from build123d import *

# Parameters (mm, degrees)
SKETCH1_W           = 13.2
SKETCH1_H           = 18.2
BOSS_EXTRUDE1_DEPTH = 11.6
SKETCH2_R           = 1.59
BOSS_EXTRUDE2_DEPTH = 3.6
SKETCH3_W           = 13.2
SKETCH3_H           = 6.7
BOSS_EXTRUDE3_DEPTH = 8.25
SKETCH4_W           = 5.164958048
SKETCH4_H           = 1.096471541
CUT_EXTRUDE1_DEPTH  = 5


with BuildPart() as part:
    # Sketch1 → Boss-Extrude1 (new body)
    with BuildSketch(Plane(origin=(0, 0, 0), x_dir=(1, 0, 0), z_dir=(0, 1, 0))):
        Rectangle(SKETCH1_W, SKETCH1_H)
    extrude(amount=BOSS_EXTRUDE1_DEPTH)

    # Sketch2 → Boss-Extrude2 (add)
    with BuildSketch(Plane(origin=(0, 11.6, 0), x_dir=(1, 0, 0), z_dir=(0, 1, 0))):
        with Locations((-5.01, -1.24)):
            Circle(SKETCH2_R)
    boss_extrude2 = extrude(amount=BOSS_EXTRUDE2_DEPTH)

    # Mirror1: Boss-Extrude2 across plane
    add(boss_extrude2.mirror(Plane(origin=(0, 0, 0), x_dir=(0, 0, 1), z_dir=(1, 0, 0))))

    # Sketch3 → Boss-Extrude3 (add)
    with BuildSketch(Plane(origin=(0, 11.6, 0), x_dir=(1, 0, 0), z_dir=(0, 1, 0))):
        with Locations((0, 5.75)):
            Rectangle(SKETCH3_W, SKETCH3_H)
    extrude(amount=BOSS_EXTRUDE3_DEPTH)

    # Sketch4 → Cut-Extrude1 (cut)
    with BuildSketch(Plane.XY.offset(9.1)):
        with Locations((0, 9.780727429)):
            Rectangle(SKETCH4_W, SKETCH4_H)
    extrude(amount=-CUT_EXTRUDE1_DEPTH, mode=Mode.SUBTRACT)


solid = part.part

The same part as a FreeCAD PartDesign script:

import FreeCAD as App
import Part
import Sketcher
from FreeCAD import Vector


def add_polygon(sketch, points):
    """Adds a closed chain of lines whose ends are joined by coincident constraints."""
    first, n = sketch.GeometryCount, len(points)
    for a, b in zip(points, points[1:] + points[:1]):
        sketch.addGeometry(Part.LineSegment(App.Vector(*a, 0), App.Vector(*b, 0)), False)
    for i in range(n):
        sketch.addConstraint(Sketcher.Constraint("Coincident", first + i, 2, first + (i + 1) % n, 1))

doc = App.newDocument("Part")
body = doc.addObject("PartDesign::Body", "Body")

# Sketch on XZ plane
sketch1 = body.newObject("Sketcher::SketchObject", "Sketch")
sketch1.AttachmentSupport = (doc.getObject("XZ_Plane"), [""])
sketch1.MapMode = "FlatFace"
add_polygon(sketch1, [(-7, -9), (-7, 9), (7, 9), (7, -9)])  # lines 0-3
sketch1.addConstraint([
    Sketcher.Constraint("Vertical", 0),
    Sketcher.Constraint("Horizontal", 1),
    Sketcher.Constraint("Vertical", 2),
    Sketcher.Constraint("Horizontal", 3),
    Sketcher.Constraint("Symmetric", 0, 2, 2, 2, -1, 1),
    Sketcher.Constraint("DistanceX", 1, 1, 1, 2, 13.2),
    Sketcher.Constraint("DistanceY", 0, 1, 0, 2, 18.2),
])
pad1 = body.newObject("PartDesign::Pad", "Pad")
pad1.Profile = sketch1
pad1.Length = 11.6
pad1.Reversed = True

# Sketch on XZ plane
sketch2 = body.newObject("Sketcher::SketchObject", "Sketch001")
sketch2.AttachmentSupport = (doc.getObject("XZ_Plane"), [""])
sketch2.MapMode = "FlatFace"
sketch2.AttachmentOffset = App.Placement(Vector(0, 0, -11.6), App.Rotation())
sketch2.addGeometry(Part.Circle(Vector(-5, 1.2, 0), Vector(0, 0, 1), 1.6), False)
sketch2.addConstraint([
    Sketcher.Constraint("Diameter", 0, 3.18),
    Sketcher.Constraint("DistanceX", 0, 3, -1, 1, 5.01),
    Sketcher.Constraint("DistanceY", -1, 1, 0, 3, 1.24),
])
pad2 = body.newObject("PartDesign::Pad", "Pad001")
pad2.Profile = sketch2
pad2.Length = 3.6
pad2.Reversed = True
doc.recompute()

mirrored = body.newObject("PartDesign::Mirrored", "Mirrored")
mirrored.Originals = [pad2]
mirrored.MirrorPlane = (doc.getObject("YZ_Plane"), [""])
body.Tip = mirrored

# Sketch on XZ plane
sketch3 = body.newObject("Sketcher::SketchObject", "Sketch002")
sketch3.AttachmentSupport = (doc.getObject("XZ_Plane"), [""])
sketch3.MapMode = "FlatFace"
sketch3.AttachmentOffset = App.Placement(Vector(0, 0, -11.6), App.Rotation())
add_polygon(sketch3, [(-7, -9), (-7, -2), (7, -2), (7, -9)])  # lines 0-3
sketch3.addConstraint([
    Sketcher.Constraint("Vertical", 0),
    Sketcher.Constraint("Horizontal", 1),
    Sketcher.Constraint("Vertical", 2),
    Sketcher.Constraint("Horizontal", 3),
    Sketcher.Constraint("DistanceX", 1, 1, 1, 2, 13.2),
    Sketcher.Constraint("DistanceY", 0, 1, 0, 2, 6.7),
    Sketcher.Constraint("DistanceX", 0, 2, -1, 1, 6.6),
    Sketcher.Constraint("DistanceY", 0, 2, -1, 1, 2.4),
])
pad3 = body.newObject("PartDesign::Pad", "Pad002")
pad3.Profile = sketch3
pad3.Length = 8.25
pad3.Reversed = True

# Sketch on XY plane
sketch4 = body.newObject("Sketcher::SketchObject", "Sketch003")
sketch4.AttachmentSupport = (doc.getObject("XY_Plane"), [""])
sketch4.MapMode = "FlatFace"
sketch4.AttachmentOffset = App.Placement(Vector(0, 0, 9.1), App.Rotation())
add_polygon(sketch4, [(-2.6, 10.3), (-2.6, 9.2), (2.6, 9.2), (2.6, 10.3)])  # lines 0-3
sketch4.addConstraint([
    Sketcher.Constraint("Vertical", 0),
    Sketcher.Constraint("Horizontal", 1),
    Sketcher.Constraint("Vertical", 2),
    Sketcher.Constraint("Horizontal", 3),
    Sketcher.Constraint("DistanceX", 1, 1, 1, 2, 5.164958),
    Sketcher.Constraint("DistanceY", 0, 2, 0, 1, 1.096472),
    Sketcher.Constraint("DistanceX", 0, 2, -1, 1, 2.582479),
    Sketcher.Constraint("DistanceY", -1, 1, 0, 2, 9.232492),
])
pocket1 = body.newObject("PartDesign::Pocket", "Pocket")
pocket1.Profile = sketch4
pocket1.Length = 5

doc.recompute()
